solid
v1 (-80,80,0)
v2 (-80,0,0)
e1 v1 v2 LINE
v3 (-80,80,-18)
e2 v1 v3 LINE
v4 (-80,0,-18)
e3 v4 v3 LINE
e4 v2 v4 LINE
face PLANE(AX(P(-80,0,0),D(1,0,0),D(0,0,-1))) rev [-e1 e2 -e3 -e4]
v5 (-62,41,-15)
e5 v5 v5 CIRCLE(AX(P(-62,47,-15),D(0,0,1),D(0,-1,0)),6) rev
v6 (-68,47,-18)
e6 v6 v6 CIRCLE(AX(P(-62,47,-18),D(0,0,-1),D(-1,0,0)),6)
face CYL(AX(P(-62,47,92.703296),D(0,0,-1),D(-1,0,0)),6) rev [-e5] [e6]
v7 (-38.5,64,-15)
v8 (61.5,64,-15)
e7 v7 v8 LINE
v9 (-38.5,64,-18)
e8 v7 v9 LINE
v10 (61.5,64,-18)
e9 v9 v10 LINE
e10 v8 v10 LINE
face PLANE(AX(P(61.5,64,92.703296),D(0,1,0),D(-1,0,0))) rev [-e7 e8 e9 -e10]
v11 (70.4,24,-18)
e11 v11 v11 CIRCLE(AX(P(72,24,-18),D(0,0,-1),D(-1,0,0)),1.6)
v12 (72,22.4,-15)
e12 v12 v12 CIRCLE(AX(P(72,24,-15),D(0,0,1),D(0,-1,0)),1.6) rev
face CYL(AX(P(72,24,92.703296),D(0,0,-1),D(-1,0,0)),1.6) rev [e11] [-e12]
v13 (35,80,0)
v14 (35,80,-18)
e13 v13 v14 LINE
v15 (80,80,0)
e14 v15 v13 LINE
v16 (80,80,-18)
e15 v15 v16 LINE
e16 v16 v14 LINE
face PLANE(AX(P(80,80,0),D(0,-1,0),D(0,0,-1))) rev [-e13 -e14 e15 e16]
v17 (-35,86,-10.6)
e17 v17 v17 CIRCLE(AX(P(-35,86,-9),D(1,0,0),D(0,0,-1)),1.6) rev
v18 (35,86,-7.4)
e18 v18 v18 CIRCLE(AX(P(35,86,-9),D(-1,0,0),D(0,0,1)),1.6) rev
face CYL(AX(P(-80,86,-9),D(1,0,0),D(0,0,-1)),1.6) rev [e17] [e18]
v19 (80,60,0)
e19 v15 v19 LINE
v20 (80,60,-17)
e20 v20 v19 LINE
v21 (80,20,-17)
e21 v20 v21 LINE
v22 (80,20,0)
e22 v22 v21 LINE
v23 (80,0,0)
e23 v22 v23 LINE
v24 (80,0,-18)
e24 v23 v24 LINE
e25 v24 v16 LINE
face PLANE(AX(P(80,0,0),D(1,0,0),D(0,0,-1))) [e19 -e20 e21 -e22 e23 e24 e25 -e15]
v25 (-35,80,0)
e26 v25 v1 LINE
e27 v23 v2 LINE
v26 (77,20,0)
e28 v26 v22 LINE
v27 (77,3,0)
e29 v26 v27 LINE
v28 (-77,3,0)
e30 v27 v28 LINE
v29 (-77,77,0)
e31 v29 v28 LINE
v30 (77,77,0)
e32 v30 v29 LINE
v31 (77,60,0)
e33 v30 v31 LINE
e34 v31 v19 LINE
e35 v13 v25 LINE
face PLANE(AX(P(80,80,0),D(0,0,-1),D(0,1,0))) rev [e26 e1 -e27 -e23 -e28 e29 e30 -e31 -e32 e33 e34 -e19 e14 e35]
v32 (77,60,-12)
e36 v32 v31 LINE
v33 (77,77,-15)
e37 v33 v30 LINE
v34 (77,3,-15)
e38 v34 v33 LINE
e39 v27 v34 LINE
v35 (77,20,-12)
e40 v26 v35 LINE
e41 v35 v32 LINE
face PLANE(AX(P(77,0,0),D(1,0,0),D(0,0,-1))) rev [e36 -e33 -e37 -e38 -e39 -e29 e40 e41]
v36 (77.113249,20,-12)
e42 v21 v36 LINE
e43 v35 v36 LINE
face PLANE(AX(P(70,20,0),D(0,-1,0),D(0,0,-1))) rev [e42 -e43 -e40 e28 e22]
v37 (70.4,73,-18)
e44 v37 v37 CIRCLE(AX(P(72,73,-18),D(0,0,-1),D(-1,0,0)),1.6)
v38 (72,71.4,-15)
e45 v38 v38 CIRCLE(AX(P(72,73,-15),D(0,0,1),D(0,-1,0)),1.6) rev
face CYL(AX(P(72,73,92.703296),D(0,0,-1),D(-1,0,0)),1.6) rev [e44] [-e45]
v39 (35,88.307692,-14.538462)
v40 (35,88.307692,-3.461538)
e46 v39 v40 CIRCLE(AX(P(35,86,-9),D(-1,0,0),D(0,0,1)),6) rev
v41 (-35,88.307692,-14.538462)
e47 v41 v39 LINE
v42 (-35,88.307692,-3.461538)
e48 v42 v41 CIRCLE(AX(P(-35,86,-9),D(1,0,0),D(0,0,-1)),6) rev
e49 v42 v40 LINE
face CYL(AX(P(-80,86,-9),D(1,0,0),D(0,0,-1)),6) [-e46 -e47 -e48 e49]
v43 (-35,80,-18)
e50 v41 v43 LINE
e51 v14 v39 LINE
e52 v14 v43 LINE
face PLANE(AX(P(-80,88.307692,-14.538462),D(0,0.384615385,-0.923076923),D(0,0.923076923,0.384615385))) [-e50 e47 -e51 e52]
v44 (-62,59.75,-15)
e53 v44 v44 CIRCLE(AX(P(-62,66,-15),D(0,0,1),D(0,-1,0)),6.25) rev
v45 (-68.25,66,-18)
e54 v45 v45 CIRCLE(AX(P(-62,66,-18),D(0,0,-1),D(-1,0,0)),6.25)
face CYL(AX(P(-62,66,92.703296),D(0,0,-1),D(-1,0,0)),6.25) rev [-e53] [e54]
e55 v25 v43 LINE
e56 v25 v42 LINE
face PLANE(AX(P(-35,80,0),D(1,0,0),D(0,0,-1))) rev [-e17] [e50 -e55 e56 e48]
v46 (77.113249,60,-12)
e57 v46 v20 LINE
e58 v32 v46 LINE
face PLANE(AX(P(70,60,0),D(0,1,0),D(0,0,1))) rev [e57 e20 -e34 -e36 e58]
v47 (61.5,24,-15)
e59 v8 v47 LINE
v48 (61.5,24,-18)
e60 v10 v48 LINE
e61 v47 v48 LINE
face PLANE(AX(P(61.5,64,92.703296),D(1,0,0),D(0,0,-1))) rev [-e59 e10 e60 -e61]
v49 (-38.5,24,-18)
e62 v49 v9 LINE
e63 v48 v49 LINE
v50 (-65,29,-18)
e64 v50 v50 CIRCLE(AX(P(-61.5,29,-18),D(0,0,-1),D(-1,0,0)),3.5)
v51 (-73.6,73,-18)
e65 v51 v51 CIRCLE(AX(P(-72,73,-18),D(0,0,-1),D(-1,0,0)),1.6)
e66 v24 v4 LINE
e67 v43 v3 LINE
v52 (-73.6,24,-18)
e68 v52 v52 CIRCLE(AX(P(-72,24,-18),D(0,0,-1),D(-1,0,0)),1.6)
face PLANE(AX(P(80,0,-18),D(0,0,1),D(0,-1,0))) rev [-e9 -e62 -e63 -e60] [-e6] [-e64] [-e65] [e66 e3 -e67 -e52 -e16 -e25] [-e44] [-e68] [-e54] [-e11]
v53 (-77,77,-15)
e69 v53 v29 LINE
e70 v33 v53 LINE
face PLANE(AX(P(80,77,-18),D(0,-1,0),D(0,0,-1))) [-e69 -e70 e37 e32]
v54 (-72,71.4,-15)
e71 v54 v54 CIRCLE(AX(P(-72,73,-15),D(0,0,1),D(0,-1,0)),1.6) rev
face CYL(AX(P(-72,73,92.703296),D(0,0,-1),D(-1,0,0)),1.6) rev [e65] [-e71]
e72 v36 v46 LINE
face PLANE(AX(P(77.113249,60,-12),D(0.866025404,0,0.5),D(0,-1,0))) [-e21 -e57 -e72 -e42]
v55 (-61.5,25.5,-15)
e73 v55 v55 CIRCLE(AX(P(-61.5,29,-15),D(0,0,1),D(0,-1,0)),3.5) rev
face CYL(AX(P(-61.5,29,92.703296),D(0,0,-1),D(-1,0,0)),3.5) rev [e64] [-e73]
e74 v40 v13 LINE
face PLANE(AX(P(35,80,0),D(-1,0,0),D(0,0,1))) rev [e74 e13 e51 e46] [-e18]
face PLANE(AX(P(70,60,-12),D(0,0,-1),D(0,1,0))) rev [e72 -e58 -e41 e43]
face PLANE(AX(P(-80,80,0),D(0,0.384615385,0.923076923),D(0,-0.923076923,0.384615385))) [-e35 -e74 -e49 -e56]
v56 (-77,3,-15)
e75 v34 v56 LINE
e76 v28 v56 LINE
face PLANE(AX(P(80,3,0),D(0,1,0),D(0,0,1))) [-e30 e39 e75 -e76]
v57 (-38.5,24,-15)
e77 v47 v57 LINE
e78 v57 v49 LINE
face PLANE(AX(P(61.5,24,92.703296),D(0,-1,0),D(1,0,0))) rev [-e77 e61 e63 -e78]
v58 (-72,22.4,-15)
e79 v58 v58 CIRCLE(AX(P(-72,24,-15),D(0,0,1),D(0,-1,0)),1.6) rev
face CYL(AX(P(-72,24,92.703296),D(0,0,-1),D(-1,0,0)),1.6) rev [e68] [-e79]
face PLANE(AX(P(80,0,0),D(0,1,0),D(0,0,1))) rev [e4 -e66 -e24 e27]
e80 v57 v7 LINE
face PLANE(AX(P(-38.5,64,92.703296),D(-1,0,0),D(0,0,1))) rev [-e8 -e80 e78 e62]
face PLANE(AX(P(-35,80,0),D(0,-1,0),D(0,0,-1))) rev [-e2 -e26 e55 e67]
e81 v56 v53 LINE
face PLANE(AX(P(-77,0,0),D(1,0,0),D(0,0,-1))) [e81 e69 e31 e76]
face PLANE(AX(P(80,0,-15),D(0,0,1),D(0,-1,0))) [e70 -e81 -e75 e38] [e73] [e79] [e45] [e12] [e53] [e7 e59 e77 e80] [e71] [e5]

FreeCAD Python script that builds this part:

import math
import FreeCAD as App
import Part
import Sketcher


def edges_at(feature, points):
    """Names of the edges that pass closest to the given points."""
    edges = feature.Shape.Edges
    near = lambda p: min(range(len(edges)), key=lambda i: edges[i].distToShape(Part.Vertex(*p))[0])
    return sorted({f"Edge{near(p) + 1}" for p in points})


def faces_at(feature, points):
    """Names of the faces that lie closest to the given points."""
    faces = feature.Shape.Faces
    near = lambda p: min(range(len(faces)), key=lambda i: faces[i].distToShape(Part.Vertex(*p))[0])
    return sorted({f"Face{near(p) + 1}" for p in points})

doc = App.newDocument("Part")
body = doc.addObject("PartDesign::Body", "Body")

# Sketch on YZ plane
sketch1 = body.newObject("Sketcher::SketchObject", "Sketch")
sketch1.AttachmentSupport = (doc.getObject("YZ_Plane"), [""])
sketch1.MapMode = "FlatFace"
sketch1.addGeometry(Part.LineSegment(App.Vector(80, 0, 0), App.Vector(0, 0, 0)), False)
sketch1.addGeometry(Part.LineSegment(App.Vector(0, 0, 0), App.Vector(0, -18, 0)), False)
sketch1.addGeometry(Part.LineSegment(App.Vector(0, -18, 0), App.Vector(80, -18, 0)), False)
sketch1.addGeometry(Part.LineSegment(App.Vector(80, -18, 0), App.Vector(80, 0, 0)), False)
sketch1.addConstraint(Sketcher.Constraint("Coincident", 0, 2, 1, 1))
sketch1.addConstraint(Sketcher.Constraint("Coincident", 1, 2, 2, 1))
sketch1.addConstraint(Sketcher.Constraint("Coincident", 2, 2, 3, 1))
sketch1.addConstraint(Sketcher.Constraint("Coincident", 3, 2, 0, 1))
sketch1.addConstraint(Sketcher.Constraint("Horizontal", 0))
sketch1.addConstraint(Sketcher.Constraint("Vertical", 1))
sketch1.addConstraint(Sketcher.Constraint("Horizontal", 2))
sketch1.addConstraint(Sketcher.Constraint("Vertical", 3))
sketch1.addConstraint(Sketcher.Constraint("Coincident", 0, 2, -1, 1))
sketch1.addConstraint(Sketcher.Constraint("DistanceX", 0, 2, 0, 1, 80.0))
sketch1.addConstraint(Sketcher.Constraint("DistanceY", 1, 2, 1, 1, 18.0))
pad1 = body.newObject("PartDesign::Pad", "Pad")
pad1.Profile = sketch1
pad1.Length = 160
pad1.Midplane = True
doc.recompute()

thickness = body.newObject("PartDesign::Thickness", "Thickness")
thickness.Base = (pad1, faces_at(pad1, [(0, 40, 0)]))
thickness.Value = 3
thickness.Reversed = True
thickness.Join = "Intersection"

# Sketch on XY plane
sketch2 = body.newObject("Sketcher::SketchObject", "Sketch001")
sketch2.AttachmentSupport = (doc.getObject("XY_Plane"), [""])
sketch2.MapMode = "FlatFace"
sketch2.AttachmentOffset = App.Placement(App.Vector(0, 0, -18), App.Rotation())
sketch2.addGeometry(Part.Circle(App.Vector(-72, 24, 0), App.Vector(0, 0, 1), 1.6), False)
sketch2.addGeometry(Part.Circle(App.Vector(-72, 73, 0), App.Vector(0, 0, 1), 1.6), False)
sketch2.addGeometry(Part.Circle(App.Vector(72, 73, 0), App.Vector(0, 0, 1), 1.6), False)
sketch2.addGeometry(Part.Circle(App.Vector(72, 24, 0), App.Vector(0, 0, 1), 1.6), False)
sketch2.addGeometry(Part.Circle(App.Vector(-62, 47, 0), App.Vector(0, 0, 1), 6), False)
sketch2.addGeometry(Part.Circle(App.Vector(-61.5, 29, 0), App.Vector(0, 0, 1), 3.5), False)
sketch2.addGeometry(Part.Circle(App.Vector(-62, 66, 0), App.Vector(0, 0, 1), 6.2), False)
sketch2.addGeometry(Part.LineSegment(App.Vector(-38.5, 24, 0), App.Vector(-38.5, 64, 0)), False)
sketch2.addGeometry(Part.LineSegment(App.Vector(-38.5, 64, 0), App.Vector(61.5, 64, 0)), False)
sketch2.addGeometry(Part.LineSegment(App.Vector(61.5, 64, 0), App.Vector(61.5, 24, 0)), False)
sketch2.addGeometry(Part.LineSegment(App.Vector(61.5, 24, 0), App.Vector(-38.5, 24, 0)), False)
sketch2.addConstraint(Sketcher.Constraint("Coincident", 7, 2, 8, 1))
sketch2.addConstraint(Sketcher.Constraint("Coincident", 8, 2, 9, 1))
sketch2.addConstraint(Sketcher.Constraint("Coincident", 9, 2, 10, 1))
sketch2.addConstraint(Sketcher.Constraint("Coincident", 10, 2, 7, 1))
sketch2.addConstraint(Sketcher.Constraint("Vertical", 7))
sketch2.addConstraint(Sketcher.Constraint("Horizontal", 8))
sketch2.addConstraint(Sketcher.Constraint("Vertical", 9))
sketch2.addConstraint(Sketcher.Constraint("Horizontal", 10))
sketch2.addConstraint(Sketcher.Constraint("Equal", 0, 1))
sketch2.addConstraint(Sketcher.Constraint("Equal", 1, 2))
sketch2.addConstraint(Sketcher.Constraint("Equal", 2, 3))
sketch2.addConstraint(Sketcher.Constraint("Symmetric", 1, 3, 2, 3, -2))
sketch2.addConstraint(Sketcher.Constraint("Symmetric", 0, 3, 3, 3, -2))
sketch2.addConstraint(Sketcher.Constraint("Horizontal", 3, 3, 9, 2))
sketch2.addConstraint(Sketcher.Constraint("Vertical", 0, 3, 1, 3))
sketch2.addConstraint(Sketcher.Constraint("Vertical", 4, 3, 6, 3))
sketch2.addConstraint(Sketcher.Constraint("Diameter", 4, 12.0))
sketch2.addConstraint(Sketcher.Constraint("Diameter", 5, 7.0))
sketch2.addConstraint(Sketcher.Constraint("Diameter", 0, 3.2))
sketch2.addConstraint(Sketcher.Constraint("Diameter", 6, 12.5))
sketch2.addConstraint(Sketcher.Constraint("DistanceX", 8, 1, 8, 2, 100.0))
sketch2.addConstraint(Sketcher.Constraint("DistanceY", 7, 1, 7, 2, 40.0))
sketch2.addConstraint(Sketcher.Constraint("DistanceX", 0, 3, -1, 1, 72.0))
sketch2.addConstraint(Sketcher.Constraint("DistanceY", -1, 1, 0, 3, 24.0))
sketch2.addConstraint(Sketcher.Constraint("DistanceY", -1, 1, 1, 3, 73.0))
sketch2.addConstraint(Sketcher.Constraint("DistanceX", 4, 3, -1, 1, 62.0))
sketch2.addConstraint(Sketcher.Constraint("DistanceY", -1, 1, 4, 3, 47.0))
sketch2.addConstraint(Sketcher.Constraint("DistanceY", -1, 1, 5, 3, 29.0))
sketch2.addConstraint(Sketcher.Constraint("DistanceY", -1, 1, 6, 3, 66.0))
sketch2.addConstraint(Sketcher.Constraint("DistanceX", 5, 3, 7, 2, 23.0))
sketch2.addConstraint(Sketcher.Constraint("DistanceX", 5, 3, -1, 1, 61.5))
pocket1 = body.newObject("PartDesign::Pocket", "Pocket")
pocket1.Profile = sketch2
pocket1.Length = 3
pocket1.Reversed = True

# Sketch on YZ plane
sketch3 = body.newObject("Sketcher::SketchObject", "Sketch002")
sketch3.AttachmentSupport = (doc.getObject("YZ_Plane"), [""])
sketch3.MapMode = "FlatFace"
sketch3.AttachmentOffset = App.Placement(App.Vector(0, 0, 80), App.Rotation())
sketch3.addGeometry(Part.LineSegment(App.Vector(80, -18, 0), App.Vector(88.3, -14.5, 0)), False)
sketch3.addGeometry(Part.ArcOfCircle(Part.Circle(App.Vector(86, -9, 0), App.Vector(0, 0, 1), 6), math.radians(-67), math.radians(67)), False)
sketch3.addGeometry(Part.LineSegment(App.Vector(88.3, -3.5, 0), App.Vector(80, 0, 0)), False)
sketch3.addGeometry(Part.LineSegment(App.Vector(80, 0, 0), App.Vector(80, -18, 0)), False)
sketch3.addGeometry(Part.Circle(App.Vector(86, -9, 0), App.Vector(0, 0, 1), 1.6), False)
sketch3.addConstraint(Sketcher.Constraint("Tangent", 0, 2, 1, 1))
sketch3.addConstraint(Sketcher.Constraint("Tangent", 1, 2, 2, 1))
sketch3.addConstraint(Sketcher.Constraint("Coincident", 2, 2, 3, 1))
sketch3.addConstraint(Sketcher.Constraint("Coincident", 3, 2, 0, 1))
sketch3.addConstraint(Sketcher.Constraint("Vertical", 3))
sketch3.addConstraint(Sketcher.Constraint("Coincident", 4, 3, 1, 3))
sketch3.addConstraint(Sketcher.Constraint("PointOnObject", 2, 2, -1))
sketch3.addConstraint(Sketcher.Constraint("Vertical", 0, 2, 1, 2))
sketch3.addConstraint(Sketcher.Constraint("Radius", 1, 6.0))
sketch3.addConstraint(Sketcher.Constraint("Diameter", 4, 3.2))
sketch3.addConstraint(Sketcher.Constraint("DistanceY", 3, 2, 3, 1, 18.0))
sketch3.addConstraint(Sketcher.Constraint("Distance", 0, 9.0))
sketch3.addConstraint(Sketcher.Constraint("DistanceX", -1, 1, 1, 3, 86.0))
pad2 = body.newObject("PartDesign::Pad", "Pad001")
pad2.Profile = sketch3
pad2.Length = 160
pad2.Reversed = True

# Sketch on XY plane
sketch4 = body.newObject("Sketcher::SketchObject", "Sketch003")
sketch4.AttachmentSupport = (doc.getObject("XY_Plane"), [""])
sketch4.MapMode = "FlatFace"
sketch4.AttachmentOffset = App.Placement(App.Vector(0, 0, -18), App.Rotation())
sketch4.addGeometry(Part.LineSegment(App.Vector(80, 92, 0), App.Vector(80, 80, 0)), False)
sketch4.addGeometry(Part.LineSegment(App.Vector(80, 80, 0), App.Vector(35, 80, 0)), False)
sketch4.addGeometry(Part.LineSegment(App.Vector(35, 80, 0), App.Vector(35, 92, 0)), False)
sketch4.addGeometry(Part.LineSegment(App.Vector(35, 92, 0), App.Vector(80, 92, 0)), False)
sketch4.addGeometry(Part.LineSegment(App.Vector(-35, 92, 0), App.Vector(-35, 80, 0)), False)
sketch4.addGeometry(Part.LineSegment(App.Vector(-35, 80, 0), App.Vector(-80, 80, 0)), False)
sketch4.addGeometry(Part.LineSegment(App.Vector(-80, 80, 0), App.Vector(-80, 92, 0)), False)
sketch4.addGeometry(Part.LineSegment(App.Vector(-80, 92, 0), App.Vector(-35, 92, 0)), False)
sketch4.addConstraint(Sketcher.Constraint("Coincident", 0, 2, 1, 1))
sketch4.addConstraint(Sketcher.Constraint("Coincident", 1, 2, 2, 1))
sketch4.addConstraint(Sketcher.Constraint("Coincident", 2, 2, 3, 1))
sketch4.addConstraint(Sketcher.Constraint("Coincident", 3, 2, 0, 1))
sketch4.addConstraint(Sketcher.Constraint("Coincident", 4, 2, 5, 1))
sketch4.addConstraint(Sketcher.Constraint("Coincident", 5, 2, 6, 1))
sketch4.addConstraint(Sketcher.Constraint("Coincident", 6, 2, 7, 1))
sketch4.addConstraint(Sketcher.Constraint("Coincident", 7, 2, 4, 1))
sketch4.addConstraint(Sketcher.Constraint("Vertical", 0))
sketch4.addConstraint(Sketcher.Constraint("Horizontal", 1))
sketch4.addConstraint(Sketcher.Constraint("Vertical", 2))
sketch4.addConstraint(Sketcher.Constraint("Horizontal", 3))
sketch4.addConstraint(Sketcher.Constraint("Vertical", 4))
sketch4.addConstraint(Sketcher.Constraint("Horizontal", 5))
sketch4.addConstraint(Sketcher.Constraint("Vertical", 6))
sketch4.addConstraint(Sketcher.Constraint("Horizontal", 7))
sketch4.addConstraint(Sketcher.Constraint("Symmetric", 1, 2, 4, 2, -2))
sketch4.addConstraint(Sketcher.Constraint("Symmetric", 3, 2, 6, 2, -2))
sketch4.addConstraint(Sketcher.Constraint("DistanceX", 1, 2, 1, 1, 45.0))
sketch4.addConstraint(Sketcher.Constraint("DistanceY", 0, 2, 0, 1, 12.0))
sketch4.addConstraint(Sketcher.Constraint("DistanceX", -1, 1, 0, 2, 80.0))
sketch4.addConstraint(Sketcher.Constraint("DistanceY", -1, 1, 0, 2, 80.0))
pocket2 = body.newObject("PartDesign::Pocket", "Pocket001")
pocket2.Profile = sketch4
pocket2.Type = "ThroughAll"
pocket2.Reversed = True

# Sketch on YZ plane
sketch5 = body.newObject("Sketcher::SketchObject", "Sketch004")
sketch5.AttachmentSupport = (doc.getObject("YZ_Plane"), [""])
sketch5.MapMode = "FlatFace"
sketch5.AttachmentOffset = App.Placement(App.Vector(0, 0, 80), App.Rotation())
sketch5.addGeometry(Part.LineSegment(App.Vector(60, 0, 0), App.Vector(20, 0, 0)), False)
sketch5.addGeometry(Part.LineSegment(App.Vector(20, 0, 0), App.Vector(20, -12, 0)), False)
sketch5.addGeometry(Part.LineSegment(App.Vector(20, -12, 0), App.Vector(60, -12, 0)), False)
sketch5.addGeometry(Part.LineSegment(App.Vector(60, -12, 0), App.Vector(60, 0, 0)), False)
sketch5.addConstraint(Sketcher.Constraint("Coincident", 0, 2, 1, 1))
sketch5.addConstraint(Sketcher.Constraint("Coincident", 1, 2, 2, 1))
sketch5.addConstraint(Sketcher.Constraint("Coincident", 2, 2, 3, 1))
sketch5.addConstraint(Sketcher.Constraint("Coincident", 3, 2, 0, 1))
sketch5.addConstraint(Sketcher.Constraint("Horizontal", 0))
sketch5.addConstraint(Sketcher.Constraint("Vertical", 1))
sketch5.addConstraint(Sketcher.Constraint("Horizontal", 2))
sketch5.addConstraint(Sketcher.Constraint("Vertical", 3))
sketch5.addConstraint(Sketcher.Constraint("PointOnObject", 0, 2, -1))
sketch5.addConstraint(Sketcher.Constraint("DistanceX", 0, 2, 0, 1, 40.0))
sketch5.addConstraint(Sketcher.Constraint("DistanceY", 1, 2, 1, 1, 12.0))
sketch5.addConstraint(Sketcher.Constraint("DistanceX", -1, 1, 0, 2, 20.0))
pocket3 = body.newObject("PartDesign::Pocket", "Pocket002")
pocket3.Profile = sketch5
pocket3.Length = 10
doc.recompute()

chamfer = body.newObject("PartDesign::Chamfer", "Chamfer")
chamfer.Base = (pocket3, edges_at(pocket3, [(80, 40, -12)]))
chamfer.ChamferType = "Two distances"
chamfer.Size = 5
chamfer.Size2 = 2.886751

doc.recompute()
